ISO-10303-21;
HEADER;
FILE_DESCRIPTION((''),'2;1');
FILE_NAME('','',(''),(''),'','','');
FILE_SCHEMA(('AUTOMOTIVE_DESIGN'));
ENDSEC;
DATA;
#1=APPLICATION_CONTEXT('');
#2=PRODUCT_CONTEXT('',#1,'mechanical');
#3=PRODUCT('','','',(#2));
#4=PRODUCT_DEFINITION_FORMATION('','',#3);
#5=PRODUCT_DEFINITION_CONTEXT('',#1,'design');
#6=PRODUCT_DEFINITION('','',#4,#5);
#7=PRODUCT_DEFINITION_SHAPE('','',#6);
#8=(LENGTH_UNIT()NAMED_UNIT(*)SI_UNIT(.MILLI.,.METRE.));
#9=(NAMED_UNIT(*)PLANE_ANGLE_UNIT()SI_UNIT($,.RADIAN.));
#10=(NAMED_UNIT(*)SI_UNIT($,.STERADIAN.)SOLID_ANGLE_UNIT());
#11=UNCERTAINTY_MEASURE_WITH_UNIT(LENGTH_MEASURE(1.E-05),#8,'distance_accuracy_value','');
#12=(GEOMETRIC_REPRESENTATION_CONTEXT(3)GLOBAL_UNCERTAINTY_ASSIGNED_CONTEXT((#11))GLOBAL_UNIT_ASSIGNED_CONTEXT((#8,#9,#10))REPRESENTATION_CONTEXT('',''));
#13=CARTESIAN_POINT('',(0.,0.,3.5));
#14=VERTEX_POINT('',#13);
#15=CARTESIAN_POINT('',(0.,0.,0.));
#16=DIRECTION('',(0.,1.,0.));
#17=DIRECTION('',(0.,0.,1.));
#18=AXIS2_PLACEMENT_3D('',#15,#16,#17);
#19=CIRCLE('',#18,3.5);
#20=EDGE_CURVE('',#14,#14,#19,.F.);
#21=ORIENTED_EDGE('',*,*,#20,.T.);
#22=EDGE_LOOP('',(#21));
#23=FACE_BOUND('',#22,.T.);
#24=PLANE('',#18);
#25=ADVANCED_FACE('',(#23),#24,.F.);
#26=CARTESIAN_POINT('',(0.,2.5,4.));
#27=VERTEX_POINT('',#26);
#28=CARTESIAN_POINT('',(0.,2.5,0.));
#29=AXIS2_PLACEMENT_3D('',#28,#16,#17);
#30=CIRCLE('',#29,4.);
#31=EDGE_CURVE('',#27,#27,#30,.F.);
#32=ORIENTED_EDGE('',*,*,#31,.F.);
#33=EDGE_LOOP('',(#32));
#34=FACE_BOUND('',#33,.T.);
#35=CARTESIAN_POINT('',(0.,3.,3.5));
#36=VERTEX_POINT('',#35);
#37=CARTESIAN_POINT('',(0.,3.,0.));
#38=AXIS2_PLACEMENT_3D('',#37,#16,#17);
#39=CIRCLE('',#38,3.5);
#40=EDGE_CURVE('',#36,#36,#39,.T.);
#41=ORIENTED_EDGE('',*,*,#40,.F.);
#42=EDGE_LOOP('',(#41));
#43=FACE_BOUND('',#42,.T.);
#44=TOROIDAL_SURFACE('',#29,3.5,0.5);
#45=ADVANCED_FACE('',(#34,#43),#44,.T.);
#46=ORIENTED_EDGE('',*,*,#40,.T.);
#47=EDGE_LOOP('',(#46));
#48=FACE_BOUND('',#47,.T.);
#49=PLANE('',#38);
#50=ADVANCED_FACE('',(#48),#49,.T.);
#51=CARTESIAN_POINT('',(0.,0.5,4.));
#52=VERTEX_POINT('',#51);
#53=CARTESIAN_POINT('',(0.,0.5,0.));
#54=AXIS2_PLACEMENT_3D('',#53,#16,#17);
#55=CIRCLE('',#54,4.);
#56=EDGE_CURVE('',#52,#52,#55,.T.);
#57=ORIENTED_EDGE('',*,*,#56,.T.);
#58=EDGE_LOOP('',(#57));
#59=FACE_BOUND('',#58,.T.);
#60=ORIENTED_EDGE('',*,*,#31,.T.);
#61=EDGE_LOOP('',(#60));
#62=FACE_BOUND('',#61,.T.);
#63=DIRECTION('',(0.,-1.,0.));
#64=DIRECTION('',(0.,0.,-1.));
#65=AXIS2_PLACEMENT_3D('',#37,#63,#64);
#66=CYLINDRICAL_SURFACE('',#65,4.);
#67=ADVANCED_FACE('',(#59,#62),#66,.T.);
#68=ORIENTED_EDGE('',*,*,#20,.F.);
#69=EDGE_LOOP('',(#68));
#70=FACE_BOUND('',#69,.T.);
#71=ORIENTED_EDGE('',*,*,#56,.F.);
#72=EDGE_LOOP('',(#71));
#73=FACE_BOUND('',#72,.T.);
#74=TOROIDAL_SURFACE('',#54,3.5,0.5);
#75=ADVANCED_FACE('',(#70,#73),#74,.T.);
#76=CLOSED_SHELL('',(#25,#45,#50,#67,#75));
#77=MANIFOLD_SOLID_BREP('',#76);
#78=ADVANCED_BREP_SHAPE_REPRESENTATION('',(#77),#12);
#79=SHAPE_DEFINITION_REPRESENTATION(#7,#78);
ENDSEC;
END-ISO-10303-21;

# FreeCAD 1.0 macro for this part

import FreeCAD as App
import Part
import Sketcher

V = App.Vector


def edges_at(feature, points):
    """Names of the edges that pass closest to the given points."""
    edges = feature.Shape.Edges
    near = lambda p: min(range(len(edges)), key=lambda i: edges[i].distToShape(Part.Vertex(*p))[0])
    return sorted({f"Edge{near(p) + 1}" for p in points})

doc = App.newDocument("Part")
body = doc.addObject("PartDesign::Body", "Body")

sketch1 = doc.addObject("Sketcher::SketchObject", "Sketch")
body.addObject(sketch1)
sketch1.AttachmentSupport = (doc.XZ_Plane, [""])
sketch1.MapMode = "FlatFace"
sketch1.addGeometry(Part.Circle(V(0, 0, 0), V(0, 0, 1), 4), False)
sketch1.addConstraint([
    Sketcher.Constraint("Coincident", 0, 3, -1, 1),
    Sketcher.Constraint("Diameter", 0, 8.0),
])
pad1 = doc.addObject("PartDesign::Pad", "Pad")
body.addObject(pad1)
pad1.Profile = sketch1
pad1.Length = 3
pad1.Reversed = True
doc.recompute()

fillet = doc.addObject("PartDesign::Fillet", "Fillet")
body.addObject(fillet)
fillet.Base = (pad1, edges_at(pad1, [(0, 0, -4), (0, 3, -4)]))
fillet.Radius = 0.5

doc.recompute()
